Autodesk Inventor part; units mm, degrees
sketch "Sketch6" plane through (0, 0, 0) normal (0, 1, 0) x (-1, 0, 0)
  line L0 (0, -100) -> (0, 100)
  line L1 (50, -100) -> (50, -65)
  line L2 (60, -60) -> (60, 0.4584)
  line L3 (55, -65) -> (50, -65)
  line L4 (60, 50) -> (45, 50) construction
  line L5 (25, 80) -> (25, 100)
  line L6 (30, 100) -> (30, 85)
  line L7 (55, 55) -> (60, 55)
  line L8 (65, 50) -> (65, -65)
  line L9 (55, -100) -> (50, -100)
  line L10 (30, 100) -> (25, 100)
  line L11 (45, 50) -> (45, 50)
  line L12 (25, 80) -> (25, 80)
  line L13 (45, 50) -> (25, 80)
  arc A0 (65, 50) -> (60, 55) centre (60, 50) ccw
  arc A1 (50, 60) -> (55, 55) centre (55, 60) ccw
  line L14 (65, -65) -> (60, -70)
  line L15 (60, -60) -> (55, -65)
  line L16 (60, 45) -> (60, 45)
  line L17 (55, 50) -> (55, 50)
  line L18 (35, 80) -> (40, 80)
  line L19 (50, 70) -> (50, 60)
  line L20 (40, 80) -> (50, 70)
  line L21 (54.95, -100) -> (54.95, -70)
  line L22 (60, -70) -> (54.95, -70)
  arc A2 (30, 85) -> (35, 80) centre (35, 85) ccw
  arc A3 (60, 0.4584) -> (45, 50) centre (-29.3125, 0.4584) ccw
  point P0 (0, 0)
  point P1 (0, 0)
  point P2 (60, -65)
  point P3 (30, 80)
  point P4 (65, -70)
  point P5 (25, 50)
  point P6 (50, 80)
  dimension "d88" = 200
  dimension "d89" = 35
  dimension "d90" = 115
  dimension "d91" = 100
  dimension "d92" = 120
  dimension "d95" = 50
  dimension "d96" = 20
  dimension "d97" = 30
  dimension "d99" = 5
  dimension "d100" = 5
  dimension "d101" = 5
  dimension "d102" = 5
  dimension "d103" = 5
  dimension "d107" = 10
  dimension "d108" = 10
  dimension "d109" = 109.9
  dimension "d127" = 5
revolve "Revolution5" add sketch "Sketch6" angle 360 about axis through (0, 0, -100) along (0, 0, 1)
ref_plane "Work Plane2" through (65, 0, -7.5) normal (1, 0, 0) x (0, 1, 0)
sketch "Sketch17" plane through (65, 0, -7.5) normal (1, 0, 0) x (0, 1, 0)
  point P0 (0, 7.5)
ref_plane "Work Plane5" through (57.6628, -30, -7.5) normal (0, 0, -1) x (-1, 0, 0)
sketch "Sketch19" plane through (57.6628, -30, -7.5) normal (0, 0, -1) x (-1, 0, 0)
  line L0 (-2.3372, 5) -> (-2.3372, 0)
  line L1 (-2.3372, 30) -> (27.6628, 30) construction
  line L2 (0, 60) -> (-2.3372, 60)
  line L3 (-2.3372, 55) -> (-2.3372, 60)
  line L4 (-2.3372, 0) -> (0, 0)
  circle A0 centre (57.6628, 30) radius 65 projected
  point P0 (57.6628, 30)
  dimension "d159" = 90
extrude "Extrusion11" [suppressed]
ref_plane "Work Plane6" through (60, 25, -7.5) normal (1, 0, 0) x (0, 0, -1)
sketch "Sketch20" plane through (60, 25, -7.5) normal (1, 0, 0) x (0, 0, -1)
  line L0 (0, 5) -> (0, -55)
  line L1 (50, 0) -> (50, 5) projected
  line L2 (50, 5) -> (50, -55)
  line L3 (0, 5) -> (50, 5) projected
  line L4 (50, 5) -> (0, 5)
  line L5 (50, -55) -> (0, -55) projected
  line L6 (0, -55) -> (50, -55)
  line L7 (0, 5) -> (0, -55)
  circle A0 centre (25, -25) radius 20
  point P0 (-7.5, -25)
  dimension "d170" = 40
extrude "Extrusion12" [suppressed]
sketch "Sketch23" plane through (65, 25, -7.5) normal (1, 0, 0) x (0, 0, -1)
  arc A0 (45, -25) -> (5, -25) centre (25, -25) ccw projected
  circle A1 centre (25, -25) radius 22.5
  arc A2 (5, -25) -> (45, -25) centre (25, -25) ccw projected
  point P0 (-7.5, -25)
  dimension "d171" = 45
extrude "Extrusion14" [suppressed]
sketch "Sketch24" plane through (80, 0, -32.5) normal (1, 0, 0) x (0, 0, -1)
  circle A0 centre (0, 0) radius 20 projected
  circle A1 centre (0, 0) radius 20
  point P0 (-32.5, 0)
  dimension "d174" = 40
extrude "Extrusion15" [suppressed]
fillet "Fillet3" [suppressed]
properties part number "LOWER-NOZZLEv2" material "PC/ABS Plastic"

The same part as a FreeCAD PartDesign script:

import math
import FreeCAD as App
import Part
import Sketcher
from FreeCAD import Vector
Q = App.Units.Quantity

doc = App.newDocument("Part")
body = doc.addObject("PartDesign::Body", "Body")

# Sketch on XZ plane
sketch1 = body.newObject("Sketcher::SketchObject", "Sketch")
sketch1.AttachmentSupport = (doc.getObject("XZ_Plane"), [""])
sketch1.MapMode = "FlatFace"
sketch1.addGeometry(Part.LineSegment(Vector(-50, -65, 0), Vector(-50, -100, 0)), False)
sketch1.addGeometry(Part.LineSegment(Vector(-50, -100, 0), Vector(-55, -100, 0)), False)
sketch1.addGeometry(Part.LineSegment(Vector(-55, -100, 0), Vector(-55, -70, 0)), False)
sketch1.addGeometry(Part.LineSegment(Vector(-55, -70, 0), Vector(-60, -70, 0)), False)
sketch1.addGeometry(Part.LineSegment(Vector(-60, -70, 0), Vector(-65, -65, 0)), False)
sketch1.addGeometry(Part.LineSegment(Vector(-65, -65, 0), Vector(-65, 50, 0)), False)
sketch1.addGeometry(Part.ArcOfCircle(Part.Circle(Vector(-60, 50, 0), Vector(0, 0, 1), 5), math.radians(90), math.radians(180)), False)
sketch1.addGeometry(Part.LineSegment(Vector(-60, 55, 0), Vector(-55, 55, 0)), False)
sketch1.addGeometry(Part.ArcOfCircle(Part.Circle(Vector(-55, 60, 0), Vector(0, 0, 1), 5), math.radians(-90), math.radians(0)), False)
sketch1.addGeometry(Part.LineSegment(Vector(-50, 60, 0), Vector(-50, 70, 0)), False)
sketch1.addGeometry(Part.LineSegment(Vector(-50, 70, 0), Vector(-40, 80, 0)), False)
sketch1.addGeometry(Part.LineSegment(Vector(-40, 80, 0), Vector(-35, 80, 0)), False)
sketch1.addGeometry(Part.ArcOfCircle(Part.Circle(Vector(-35, 85, 0), Vector(0, 0, 1), 5), math.radians(-90), math.radians(0)), False)
sketch1.addGeometry(Part.LineSegment(Vector(-30, 85, 0), Vector(-30, 100, 0)), False)
sketch1.addGeometry(Part.LineSegment(Vector(-30, 100, 0), Vector(-25, 100, 0)), False)
sketch1.addGeometry(Part.LineSegment(Vector(-25, 100, 0), Vector(-25, 80, 0)), False)
sketch1.addGeometry(Part.LineSegment(Vector(-25, 80, 0), Vector(-45, 50, 0)), False)
sketch1.addGeometry(Part.ArcOfCircle(Part.Circle(Vector(29.3, 0.5, 0), Vector(0, 0, 1), 89.3), math.radians(146), math.radians(180)), False)
sketch1.addGeometry(Part.LineSegment(Vector(-60, 0.5, 0), Vector(-60, -60, 0)), False)
sketch1.addGeometry(Part.LineSegment(Vector(-60, -60, 0), Vector(-55, -65, 0)), False)
sketch1.addGeometry(Part.LineSegment(Vector(-55, -65, 0), Vector(-50, -65, 0)), False)
sketch1.addConstraint(Sketcher.Constraint("Coincident", 0, 2, 1, 1))
sketch1.addConstraint(Sketcher.Constraint("Coincident", 1, 2, 2, 1))
sketch1.addConstraint(Sketcher.Constraint("Coincident", 2, 2, 3, 1))
sketch1.addConstraint(Sketcher.Constraint("Coincident", 3, 2, 4, 1))
sketch1.addConstraint(Sketcher.Constraint("Coincident", 4, 2, 5, 1))
sketch1.addConstraint(Sketcher.Constraint("Tangent", 5, 2, 6, 2))
sketch1.addConstraint(Sketcher.Constraint("Tangent", 6, 1, 7, 1))
sketch1.addConstraint(Sketcher.Constraint("Tangent", 7, 2, 8, 1))
sketch1.addConstraint(Sketcher.Constraint("Tangent", 8, 2, 9, 1))
sketch1.addConstraint(Sketcher.Constraint("Coincident", 9, 2, 10, 1))
sketch1.addConstraint(Sketcher.Constraint("Coincident", 10, 2, 11, 1))
sketch1.addConstraint(Sketcher.Constraint("Tangent", 11, 2, 12, 1))
sketch1.addConstraint(Sketcher.Constraint("Tangent", 12, 2, 13, 1))
sketch1.addConstraint(Sketcher.Constraint("Coincident", 13, 2, 14, 1))
sketch1.addConstraint(Sketcher.Constraint("Coincident", 14, 2, 15, 1))
sketch1.addConstraint(Sketcher.Constraint("Coincident", 15, 2, 16, 1))
sketch1.addConstraint(Sketcher.Constraint("Tangent", 16, 2, 17, 1))
sketch1.addConstraint(Sketcher.Constraint("Tangent", 17, 2, 18, 1))
sketch1.addConstraint(Sketcher.Constraint("Coincident", 18, 2, 19, 1))
sketch1.addConstraint(Sketcher.Constraint("Coincident", 19, 2, 20, 1))
sketch1.addConstraint(Sketcher.Constraint("Coincident", 20, 2, 0, 1))
sketch1.addConstraint(Sketcher.Constraint("Vertical", 0))
sketch1.addConstraint(Sketcher.Constraint("Horizontal", 1))
sketch1.addConstraint(Sketcher.Constraint("Vertical", 2))
sketch1.addConstraint(Sketcher.Constraint("Horizontal", 3))
sketch1.addConstraint(Sketcher.Constraint("Vertical", 5))
sketch1.addConstraint(Sketcher.Constraint("Horizontal", 7))
sketch1.addConstraint(Sketcher.Constraint("Vertical", 9))
sketch1.addConstraint(Sketcher.Constraint("Horizontal", 11))
sketch1.addConstraint(Sketcher.Constraint("Vertical", 13))
sketch1.addConstraint(Sketcher.Constraint("Horizontal", 14))
sketch1.addConstraint(Sketcher.Constraint("Vertical", 15))
sketch1.addConstraint(Sketcher.Constraint("Vertical", 18))
sketch1.addConstraint(Sketcher.Constraint("Horizontal", 20))
sketch1.addConstraint(Sketcher.Constraint("Equal", 6, 8))
sketch1.addConstraint(Sketcher.Constraint("Equal", 8, 12))
sketch1.addConstraint(Sketcher.Constraint("Perpendicular", 4, 10))
sketch1.addConstraint(Sketcher.Constraint("Perpendicular", 10, 19))
sketch1.addConstraint(Sketcher.Constraint("Horizontal", 11, 2, 15, 2))
sketch1.addConstraint(Sketcher.Constraint("Horizontal", 5, 2, 16, 2))
sketch1.addConstraint(Sketcher.Constraint("Horizontal", 4, 2, 19, 2))
sketch1.addConstraint(Sketcher.Constraint("Vertical", 6, 3, 3, 2))
sketch1.addConstraint(Sketcher.Constraint("Vertical", 0, 2, 8, 2))
sketch1.addConstraint(Sketcher.Constraint("Vertical", 6, 1, 17, 2))
sketch1.addConstraint(Sketcher.Constraint("Vertical", 7, 2, 19, 2))
sketch1.addConstraint(Sketcher.Constraint("Equal", 7, 11))
sketch1.addConstraint(Sketcher.Constraint("Equal", 11, 14))
sketch1.addConstraint(Sketcher.Constraint("Equal", 14, 20))
sketch1.addConstraint(Sketcher.Constraint("Radius", 6, Q("5 mm")))
sketch1.addConstraint(Sketcher.Constraint("DistanceY", 0, 2, 0, 1, Q("35 mm")))
sketch1.addConstraint(Sketcher.Constraint("DistanceY", 2, 1, 2, 2, Q("30 mm")))
sketch1.addConstraint(Sketcher.Constraint("DistanceY", 5, 1, 5, 2, Q("115 mm")))
sketch1.addConstraint(Sketcher.Constraint("DistanceY", 9, 1, 9, 2, Q("10 mm")))
sketch1.addConstraint(Sketcher.Constraint("DistanceY", 15, 2, 15, 1, Q("20 mm")))
sketch1.addConstraint(Sketcher.Constraint("DistanceY", -1, 1, 6, 3, Q("50 mm")))
sketch1.addConstraint(Sketcher.Constraint("DistanceX", 12, 3, -1, 1, Q("35 mm")))
sketch1.addConstraint(Sketcher.Constraint("DistanceX", 0, 2, -1, 1, Q("50 mm")))
sketch1.addConstraint(Sketcher.Constraint("DistanceX", 7, 2, 16, 2, Q("10 mm")))
sketch1.addConstraint(Sketcher.Constraint("DistanceX", 1, 2, 1, 1, Q("4.95 mm")))
revolution = body.newObject("PartDesign::Revolution", "Revolution")
revolution.Profile = sketch1
revolution.ReferenceAxis = (sketch1, ["V_Axis"])
revolution.Angle = 360

doc.recompute()
